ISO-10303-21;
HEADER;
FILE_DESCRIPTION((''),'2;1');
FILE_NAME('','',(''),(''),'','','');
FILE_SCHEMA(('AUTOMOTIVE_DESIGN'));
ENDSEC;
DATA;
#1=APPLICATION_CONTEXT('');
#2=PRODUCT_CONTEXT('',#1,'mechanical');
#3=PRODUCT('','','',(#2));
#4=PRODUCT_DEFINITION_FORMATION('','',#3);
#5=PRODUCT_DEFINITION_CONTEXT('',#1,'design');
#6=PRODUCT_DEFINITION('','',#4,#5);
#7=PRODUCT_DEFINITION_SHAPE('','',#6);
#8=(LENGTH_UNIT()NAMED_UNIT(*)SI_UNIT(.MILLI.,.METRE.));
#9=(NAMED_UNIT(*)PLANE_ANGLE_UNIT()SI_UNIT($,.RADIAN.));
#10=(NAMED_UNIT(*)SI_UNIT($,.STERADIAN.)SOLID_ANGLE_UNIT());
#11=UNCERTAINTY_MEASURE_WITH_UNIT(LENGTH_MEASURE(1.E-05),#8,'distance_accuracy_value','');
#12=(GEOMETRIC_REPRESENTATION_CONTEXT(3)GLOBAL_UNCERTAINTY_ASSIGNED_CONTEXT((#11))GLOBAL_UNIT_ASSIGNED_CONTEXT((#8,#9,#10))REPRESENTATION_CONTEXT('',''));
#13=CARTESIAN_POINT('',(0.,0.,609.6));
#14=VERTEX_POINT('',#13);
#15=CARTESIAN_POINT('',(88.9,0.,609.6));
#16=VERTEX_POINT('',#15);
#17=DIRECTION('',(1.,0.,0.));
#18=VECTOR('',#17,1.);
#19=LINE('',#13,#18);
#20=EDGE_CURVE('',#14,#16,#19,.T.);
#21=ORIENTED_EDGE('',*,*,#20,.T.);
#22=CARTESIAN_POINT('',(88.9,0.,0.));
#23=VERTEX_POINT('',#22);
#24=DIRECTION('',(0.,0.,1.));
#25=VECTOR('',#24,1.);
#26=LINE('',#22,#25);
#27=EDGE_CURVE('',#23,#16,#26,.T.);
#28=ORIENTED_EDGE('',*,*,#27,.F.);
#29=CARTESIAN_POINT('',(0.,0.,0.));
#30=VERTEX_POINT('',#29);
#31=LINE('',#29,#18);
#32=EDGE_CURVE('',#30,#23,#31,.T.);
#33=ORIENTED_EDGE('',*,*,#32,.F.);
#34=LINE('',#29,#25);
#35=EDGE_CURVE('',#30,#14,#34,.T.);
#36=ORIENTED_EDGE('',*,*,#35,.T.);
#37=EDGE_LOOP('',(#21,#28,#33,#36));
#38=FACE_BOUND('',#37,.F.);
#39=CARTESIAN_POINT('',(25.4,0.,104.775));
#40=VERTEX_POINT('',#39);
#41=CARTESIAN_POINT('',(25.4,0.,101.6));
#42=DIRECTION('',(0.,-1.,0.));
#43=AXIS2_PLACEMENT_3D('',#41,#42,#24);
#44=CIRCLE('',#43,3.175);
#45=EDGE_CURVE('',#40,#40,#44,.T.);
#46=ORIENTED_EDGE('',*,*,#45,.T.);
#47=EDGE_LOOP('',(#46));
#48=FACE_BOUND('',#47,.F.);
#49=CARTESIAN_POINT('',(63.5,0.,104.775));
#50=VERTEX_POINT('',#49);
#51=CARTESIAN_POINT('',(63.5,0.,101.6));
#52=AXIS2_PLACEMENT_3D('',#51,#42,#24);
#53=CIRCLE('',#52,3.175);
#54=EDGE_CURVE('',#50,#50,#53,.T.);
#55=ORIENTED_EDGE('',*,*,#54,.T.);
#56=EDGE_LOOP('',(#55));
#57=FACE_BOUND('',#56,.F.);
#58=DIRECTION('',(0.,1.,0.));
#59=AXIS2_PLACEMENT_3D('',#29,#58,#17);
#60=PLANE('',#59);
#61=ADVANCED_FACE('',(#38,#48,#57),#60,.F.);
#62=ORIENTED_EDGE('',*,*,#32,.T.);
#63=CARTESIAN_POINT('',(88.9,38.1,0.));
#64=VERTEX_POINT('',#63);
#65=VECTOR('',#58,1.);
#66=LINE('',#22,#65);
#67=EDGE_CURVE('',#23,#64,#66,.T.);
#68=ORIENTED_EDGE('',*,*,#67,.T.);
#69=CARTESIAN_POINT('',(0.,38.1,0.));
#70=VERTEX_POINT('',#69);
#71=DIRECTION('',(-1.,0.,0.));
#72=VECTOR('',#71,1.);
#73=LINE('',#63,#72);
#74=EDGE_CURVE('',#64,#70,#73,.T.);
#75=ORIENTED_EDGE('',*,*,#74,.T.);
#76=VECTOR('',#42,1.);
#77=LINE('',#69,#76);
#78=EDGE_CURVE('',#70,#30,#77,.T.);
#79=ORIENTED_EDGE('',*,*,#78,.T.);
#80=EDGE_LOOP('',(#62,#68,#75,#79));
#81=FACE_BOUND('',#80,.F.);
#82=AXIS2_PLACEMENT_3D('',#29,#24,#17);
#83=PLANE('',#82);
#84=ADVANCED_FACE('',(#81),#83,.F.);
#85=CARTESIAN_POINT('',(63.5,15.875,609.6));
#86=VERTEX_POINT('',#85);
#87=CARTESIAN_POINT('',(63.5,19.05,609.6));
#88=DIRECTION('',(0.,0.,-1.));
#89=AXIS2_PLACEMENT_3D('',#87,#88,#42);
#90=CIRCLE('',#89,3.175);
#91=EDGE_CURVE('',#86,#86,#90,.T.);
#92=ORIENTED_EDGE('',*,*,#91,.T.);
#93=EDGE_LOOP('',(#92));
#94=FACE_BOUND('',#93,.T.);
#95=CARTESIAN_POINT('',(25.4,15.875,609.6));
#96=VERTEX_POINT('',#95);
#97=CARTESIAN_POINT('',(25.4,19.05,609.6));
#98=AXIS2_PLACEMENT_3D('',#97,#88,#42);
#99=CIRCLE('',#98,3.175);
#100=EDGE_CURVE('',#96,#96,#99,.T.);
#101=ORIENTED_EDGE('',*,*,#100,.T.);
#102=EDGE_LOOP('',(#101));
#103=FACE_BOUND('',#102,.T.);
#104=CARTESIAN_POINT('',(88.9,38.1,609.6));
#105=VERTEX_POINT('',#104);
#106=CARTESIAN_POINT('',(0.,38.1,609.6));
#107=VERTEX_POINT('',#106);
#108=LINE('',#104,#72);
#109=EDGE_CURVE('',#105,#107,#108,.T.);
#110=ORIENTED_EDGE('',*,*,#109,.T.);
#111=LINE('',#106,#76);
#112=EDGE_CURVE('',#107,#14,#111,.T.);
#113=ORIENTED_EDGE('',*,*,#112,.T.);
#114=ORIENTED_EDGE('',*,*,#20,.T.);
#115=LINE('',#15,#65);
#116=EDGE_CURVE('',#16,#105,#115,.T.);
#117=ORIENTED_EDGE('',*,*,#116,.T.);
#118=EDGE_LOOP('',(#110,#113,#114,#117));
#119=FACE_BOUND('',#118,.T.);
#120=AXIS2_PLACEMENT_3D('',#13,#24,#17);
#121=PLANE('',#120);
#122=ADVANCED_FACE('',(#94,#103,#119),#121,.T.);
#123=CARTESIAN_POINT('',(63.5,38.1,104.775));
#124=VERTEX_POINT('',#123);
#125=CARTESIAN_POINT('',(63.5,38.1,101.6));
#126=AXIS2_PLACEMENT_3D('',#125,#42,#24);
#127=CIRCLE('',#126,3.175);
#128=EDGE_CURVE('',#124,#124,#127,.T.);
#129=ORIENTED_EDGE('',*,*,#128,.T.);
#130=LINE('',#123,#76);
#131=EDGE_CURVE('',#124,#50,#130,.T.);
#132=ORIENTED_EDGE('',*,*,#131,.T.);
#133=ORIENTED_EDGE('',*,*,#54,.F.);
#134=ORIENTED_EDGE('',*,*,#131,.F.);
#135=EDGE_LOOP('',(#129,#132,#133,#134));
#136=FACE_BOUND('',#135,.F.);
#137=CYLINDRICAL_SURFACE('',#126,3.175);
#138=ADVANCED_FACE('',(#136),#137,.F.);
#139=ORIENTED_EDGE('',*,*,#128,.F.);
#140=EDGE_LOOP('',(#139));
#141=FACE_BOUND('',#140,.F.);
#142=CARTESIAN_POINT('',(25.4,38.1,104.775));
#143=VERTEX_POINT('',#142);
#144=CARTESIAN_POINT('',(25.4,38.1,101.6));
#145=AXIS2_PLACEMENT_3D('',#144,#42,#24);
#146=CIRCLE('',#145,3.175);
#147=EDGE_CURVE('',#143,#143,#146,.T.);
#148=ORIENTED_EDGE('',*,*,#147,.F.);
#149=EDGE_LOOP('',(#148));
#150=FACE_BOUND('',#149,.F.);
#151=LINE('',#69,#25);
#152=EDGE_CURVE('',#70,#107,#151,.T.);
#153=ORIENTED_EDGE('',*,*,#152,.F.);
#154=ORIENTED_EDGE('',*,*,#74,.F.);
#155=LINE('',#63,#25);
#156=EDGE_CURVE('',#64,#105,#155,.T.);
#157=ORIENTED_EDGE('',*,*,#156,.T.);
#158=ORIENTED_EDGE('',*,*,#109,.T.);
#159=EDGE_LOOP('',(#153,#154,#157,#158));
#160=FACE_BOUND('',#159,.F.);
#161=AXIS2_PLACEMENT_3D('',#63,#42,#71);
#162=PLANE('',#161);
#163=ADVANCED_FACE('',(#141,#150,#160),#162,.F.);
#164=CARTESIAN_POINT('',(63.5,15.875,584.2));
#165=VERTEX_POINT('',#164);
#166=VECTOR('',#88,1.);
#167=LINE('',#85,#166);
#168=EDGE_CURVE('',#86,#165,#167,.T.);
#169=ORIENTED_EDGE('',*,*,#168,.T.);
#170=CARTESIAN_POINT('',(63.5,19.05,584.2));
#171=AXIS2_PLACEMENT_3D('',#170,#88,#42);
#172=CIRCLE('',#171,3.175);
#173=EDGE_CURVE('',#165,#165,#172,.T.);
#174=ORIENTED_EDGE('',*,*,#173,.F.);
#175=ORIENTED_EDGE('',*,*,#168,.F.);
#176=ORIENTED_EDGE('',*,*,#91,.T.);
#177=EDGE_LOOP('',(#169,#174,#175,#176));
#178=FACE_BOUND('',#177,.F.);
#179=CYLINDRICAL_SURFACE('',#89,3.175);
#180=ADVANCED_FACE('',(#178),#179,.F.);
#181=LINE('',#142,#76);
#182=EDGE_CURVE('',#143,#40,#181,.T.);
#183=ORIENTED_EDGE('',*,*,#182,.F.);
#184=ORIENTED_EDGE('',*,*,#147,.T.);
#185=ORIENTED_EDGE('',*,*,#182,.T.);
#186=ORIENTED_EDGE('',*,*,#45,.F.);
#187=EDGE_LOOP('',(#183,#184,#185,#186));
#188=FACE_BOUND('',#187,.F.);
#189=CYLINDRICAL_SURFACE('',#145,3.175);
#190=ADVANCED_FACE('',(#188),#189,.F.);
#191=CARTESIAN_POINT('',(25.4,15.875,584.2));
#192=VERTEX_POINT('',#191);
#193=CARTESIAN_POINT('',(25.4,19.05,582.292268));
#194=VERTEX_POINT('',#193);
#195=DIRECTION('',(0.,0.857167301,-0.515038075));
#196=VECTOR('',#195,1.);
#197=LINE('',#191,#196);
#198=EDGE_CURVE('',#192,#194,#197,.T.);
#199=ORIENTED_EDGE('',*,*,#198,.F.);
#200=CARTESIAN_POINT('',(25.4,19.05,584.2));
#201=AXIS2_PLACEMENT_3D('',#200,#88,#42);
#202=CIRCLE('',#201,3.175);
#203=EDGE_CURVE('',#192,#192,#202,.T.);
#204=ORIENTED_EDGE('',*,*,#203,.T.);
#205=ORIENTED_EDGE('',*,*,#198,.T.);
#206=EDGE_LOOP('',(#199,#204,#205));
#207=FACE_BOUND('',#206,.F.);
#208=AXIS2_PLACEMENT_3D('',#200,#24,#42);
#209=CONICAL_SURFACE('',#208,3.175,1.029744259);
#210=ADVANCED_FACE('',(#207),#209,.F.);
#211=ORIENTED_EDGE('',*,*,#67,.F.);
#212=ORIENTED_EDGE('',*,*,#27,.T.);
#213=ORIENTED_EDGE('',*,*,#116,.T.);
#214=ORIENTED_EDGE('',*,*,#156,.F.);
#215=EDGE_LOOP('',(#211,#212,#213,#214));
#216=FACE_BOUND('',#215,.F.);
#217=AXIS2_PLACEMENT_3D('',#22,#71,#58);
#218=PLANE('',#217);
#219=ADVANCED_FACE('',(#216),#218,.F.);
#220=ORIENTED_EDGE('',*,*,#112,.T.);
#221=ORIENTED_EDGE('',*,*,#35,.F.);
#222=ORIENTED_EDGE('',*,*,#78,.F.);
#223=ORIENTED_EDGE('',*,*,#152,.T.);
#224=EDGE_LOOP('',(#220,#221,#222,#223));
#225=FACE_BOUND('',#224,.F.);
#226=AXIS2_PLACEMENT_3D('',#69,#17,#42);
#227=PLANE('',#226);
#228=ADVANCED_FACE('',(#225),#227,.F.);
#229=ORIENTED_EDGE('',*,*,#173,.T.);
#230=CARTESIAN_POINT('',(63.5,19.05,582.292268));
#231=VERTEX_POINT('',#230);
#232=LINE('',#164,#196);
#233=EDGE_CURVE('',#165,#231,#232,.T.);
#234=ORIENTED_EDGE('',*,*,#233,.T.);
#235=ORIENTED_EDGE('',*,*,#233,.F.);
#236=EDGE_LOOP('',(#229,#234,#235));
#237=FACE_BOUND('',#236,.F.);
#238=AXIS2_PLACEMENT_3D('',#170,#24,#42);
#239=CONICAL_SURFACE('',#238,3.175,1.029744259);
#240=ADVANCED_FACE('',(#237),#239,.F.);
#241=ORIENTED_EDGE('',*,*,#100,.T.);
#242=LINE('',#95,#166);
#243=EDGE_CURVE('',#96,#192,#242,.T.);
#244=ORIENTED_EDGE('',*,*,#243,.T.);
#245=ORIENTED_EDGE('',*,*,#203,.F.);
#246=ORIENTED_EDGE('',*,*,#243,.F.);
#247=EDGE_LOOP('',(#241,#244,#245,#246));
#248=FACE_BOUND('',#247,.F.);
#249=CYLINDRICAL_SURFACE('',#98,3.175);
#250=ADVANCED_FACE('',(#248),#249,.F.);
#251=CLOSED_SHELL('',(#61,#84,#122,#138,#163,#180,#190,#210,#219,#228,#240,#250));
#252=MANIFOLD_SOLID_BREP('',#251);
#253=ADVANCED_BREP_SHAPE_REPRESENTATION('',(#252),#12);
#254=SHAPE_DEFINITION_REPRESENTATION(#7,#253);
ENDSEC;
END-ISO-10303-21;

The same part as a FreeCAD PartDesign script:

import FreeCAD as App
import Part
import Sketcher
from FreeCAD import Vector
Q = App.Units.Quantity

doc = App.newDocument("Part")
body = doc.addObject("PartDesign::Body", "Body")

# Sketch on XY plane
sketch1 = doc.addObject("Sketcher::SketchObject", "Sketch")
body.addObject(sketch1)
sketch1.AttachmentSupport = (doc.XY_Plane, [""])
sketch1.MapMode = "FlatFace"
sketch1.addGeometry([
    Part.LineSegment(Vector(0, 38.1, 0), Vector(0, 0, 0)),
    Part.LineSegment(Vector(0, 0, 0), Vector(88.9, 0, 0)),
    Part.LineSegment(Vector(88.9, 0, 0), Vector(88.9, 38.1, 0)),
    Part.LineSegment(Vector(88.9, 38.1, 0), Vector(0, 38.1, 0)),
], False)
sketch1.addConstraint([
    Sketcher.Constraint("Coincident", 0, 2, 1, 1),
    Sketcher.Constraint("Coincident", 1, 2, 2, 1),
    Sketcher.Constraint("Coincident", 2, 2, 3, 1),
    Sketcher.Constraint("Coincident", 3, 2, 0, 1),
    Sketcher.Constraint("Vertical", 0),
    Sketcher.Constraint("Horizontal", 1),
    Sketcher.Constraint("Vertical", 2),
    Sketcher.Constraint("Horizontal", 3),
    Sketcher.Constraint("Coincident", 0, 2, -1, 1),
    Sketcher.Constraint("DistanceX", 1, 1, 1, 2, Q("3.5 in")),
    Sketcher.Constraint("DistanceY", 0, 2, 0, 1, Q("1.5 in")),
])
pad1 = doc.addObject("PartDesign::Pad", "Pad")
body.addObject(pad1)
pad1.Profile = sketch1
pad1.Length = Q("24 in")

# Sketch on XY plane
sketch2 = doc.addObject("Sketcher::SketchObject", "Sketch001")
body.addObject(sketch2)
sketch2.AttachmentSupport = (doc.XY_Plane, [""])
sketch2.MapMode = "FlatFace"
sketch2.AttachmentOffset = App.Placement(Vector(0, 0, 24 * 25.4), App.Rotation())
sketch2.addGeometry([
    Part.Circle(Vector(25.4, 19.05, 0), Vector(0, 0, 1), 3.175),
    Part.Circle(Vector(63.5, 19.05, 0), Vector(0, 0, 1), 3.175),
], False)
sketch2.addConstraint([
    Sketcher.Constraint("Equal", 0, 1),
    Sketcher.Constraint("Horizontal", 0, 3, 1, 3),
    Sketcher.Constraint("Diameter", 0, Q("0.25 in")),
    Sketcher.Constraint("DistanceX", -1, 1, 0, 3, Q("1 in")),
    Sketcher.Constraint("DistanceX", -1, 1, 1, 3, Q("2.5 in")),
    Sketcher.Constraint("DistanceY", -1, 1, 0, 3, Q("0.75 in")),
])
doc.recompute()
hole = doc.addObject("PartDesign::Hole", "Hole")
body.addObject(hole)
hole.Profile = sketch2
hole.ThreadType = "None"
hole.Diameter = Q("0.25 in")
hole.DepthType = "Dimension"
hole.Depth = Q("1 in")
hole.DrillPoint = "Angled"
hole.DrillPointAngle = 118

# Sketch on XZ plane
sketch3 = doc.addObject("Sketcher::SketchObject", "Sketch002")
body.addObject(sketch3)
sketch3.AttachmentSupport = (doc.XZ_Plane, [""])
sketch3.MapMode = "FlatFace"
sketch3.AttachmentOffset = App.Placement(Vector(0, 0, -1.5 * 25.4), App.Rotation())
sketch3.addGeometry([
    Part.Circle(Vector(63.5, 101.6, 0), Vector(0, 0, 1), 3.175),
    Part.Circle(Vector(25.4, 101.6, 0), Vector(0, 0, 1), 3.175),
], False)
sketch3.addConstraint([
    Sketcher.Constraint("Equal", 0, 1),
    Sketcher.Constraint("Horizontal", 0, 3, 1, 3),
    Sketcher.Constraint("Diameter", 0, Q("0.25 in")),
    Sketcher.Constraint("DistanceY", -1, 1, 0, 3, Q("4 in")),
    Sketcher.Constraint("DistanceX", -1, 1, 1, 3, Q("1 in")),
    Sketcher.Constraint("DistanceX", -1, 1, 0, 3, Q("2.5 in")),
])
doc.recompute()
hole2 = doc.addObject("PartDesign::Hole", "Hole001")
body.addObject(hole2)
hole2.Profile = sketch3
hole2.ThreadType = "None"
hole2.Diameter = Q("0.25 in")
hole2.DepthType = "ThroughAll"
hole2.Reversed = True

doc.recompute()
